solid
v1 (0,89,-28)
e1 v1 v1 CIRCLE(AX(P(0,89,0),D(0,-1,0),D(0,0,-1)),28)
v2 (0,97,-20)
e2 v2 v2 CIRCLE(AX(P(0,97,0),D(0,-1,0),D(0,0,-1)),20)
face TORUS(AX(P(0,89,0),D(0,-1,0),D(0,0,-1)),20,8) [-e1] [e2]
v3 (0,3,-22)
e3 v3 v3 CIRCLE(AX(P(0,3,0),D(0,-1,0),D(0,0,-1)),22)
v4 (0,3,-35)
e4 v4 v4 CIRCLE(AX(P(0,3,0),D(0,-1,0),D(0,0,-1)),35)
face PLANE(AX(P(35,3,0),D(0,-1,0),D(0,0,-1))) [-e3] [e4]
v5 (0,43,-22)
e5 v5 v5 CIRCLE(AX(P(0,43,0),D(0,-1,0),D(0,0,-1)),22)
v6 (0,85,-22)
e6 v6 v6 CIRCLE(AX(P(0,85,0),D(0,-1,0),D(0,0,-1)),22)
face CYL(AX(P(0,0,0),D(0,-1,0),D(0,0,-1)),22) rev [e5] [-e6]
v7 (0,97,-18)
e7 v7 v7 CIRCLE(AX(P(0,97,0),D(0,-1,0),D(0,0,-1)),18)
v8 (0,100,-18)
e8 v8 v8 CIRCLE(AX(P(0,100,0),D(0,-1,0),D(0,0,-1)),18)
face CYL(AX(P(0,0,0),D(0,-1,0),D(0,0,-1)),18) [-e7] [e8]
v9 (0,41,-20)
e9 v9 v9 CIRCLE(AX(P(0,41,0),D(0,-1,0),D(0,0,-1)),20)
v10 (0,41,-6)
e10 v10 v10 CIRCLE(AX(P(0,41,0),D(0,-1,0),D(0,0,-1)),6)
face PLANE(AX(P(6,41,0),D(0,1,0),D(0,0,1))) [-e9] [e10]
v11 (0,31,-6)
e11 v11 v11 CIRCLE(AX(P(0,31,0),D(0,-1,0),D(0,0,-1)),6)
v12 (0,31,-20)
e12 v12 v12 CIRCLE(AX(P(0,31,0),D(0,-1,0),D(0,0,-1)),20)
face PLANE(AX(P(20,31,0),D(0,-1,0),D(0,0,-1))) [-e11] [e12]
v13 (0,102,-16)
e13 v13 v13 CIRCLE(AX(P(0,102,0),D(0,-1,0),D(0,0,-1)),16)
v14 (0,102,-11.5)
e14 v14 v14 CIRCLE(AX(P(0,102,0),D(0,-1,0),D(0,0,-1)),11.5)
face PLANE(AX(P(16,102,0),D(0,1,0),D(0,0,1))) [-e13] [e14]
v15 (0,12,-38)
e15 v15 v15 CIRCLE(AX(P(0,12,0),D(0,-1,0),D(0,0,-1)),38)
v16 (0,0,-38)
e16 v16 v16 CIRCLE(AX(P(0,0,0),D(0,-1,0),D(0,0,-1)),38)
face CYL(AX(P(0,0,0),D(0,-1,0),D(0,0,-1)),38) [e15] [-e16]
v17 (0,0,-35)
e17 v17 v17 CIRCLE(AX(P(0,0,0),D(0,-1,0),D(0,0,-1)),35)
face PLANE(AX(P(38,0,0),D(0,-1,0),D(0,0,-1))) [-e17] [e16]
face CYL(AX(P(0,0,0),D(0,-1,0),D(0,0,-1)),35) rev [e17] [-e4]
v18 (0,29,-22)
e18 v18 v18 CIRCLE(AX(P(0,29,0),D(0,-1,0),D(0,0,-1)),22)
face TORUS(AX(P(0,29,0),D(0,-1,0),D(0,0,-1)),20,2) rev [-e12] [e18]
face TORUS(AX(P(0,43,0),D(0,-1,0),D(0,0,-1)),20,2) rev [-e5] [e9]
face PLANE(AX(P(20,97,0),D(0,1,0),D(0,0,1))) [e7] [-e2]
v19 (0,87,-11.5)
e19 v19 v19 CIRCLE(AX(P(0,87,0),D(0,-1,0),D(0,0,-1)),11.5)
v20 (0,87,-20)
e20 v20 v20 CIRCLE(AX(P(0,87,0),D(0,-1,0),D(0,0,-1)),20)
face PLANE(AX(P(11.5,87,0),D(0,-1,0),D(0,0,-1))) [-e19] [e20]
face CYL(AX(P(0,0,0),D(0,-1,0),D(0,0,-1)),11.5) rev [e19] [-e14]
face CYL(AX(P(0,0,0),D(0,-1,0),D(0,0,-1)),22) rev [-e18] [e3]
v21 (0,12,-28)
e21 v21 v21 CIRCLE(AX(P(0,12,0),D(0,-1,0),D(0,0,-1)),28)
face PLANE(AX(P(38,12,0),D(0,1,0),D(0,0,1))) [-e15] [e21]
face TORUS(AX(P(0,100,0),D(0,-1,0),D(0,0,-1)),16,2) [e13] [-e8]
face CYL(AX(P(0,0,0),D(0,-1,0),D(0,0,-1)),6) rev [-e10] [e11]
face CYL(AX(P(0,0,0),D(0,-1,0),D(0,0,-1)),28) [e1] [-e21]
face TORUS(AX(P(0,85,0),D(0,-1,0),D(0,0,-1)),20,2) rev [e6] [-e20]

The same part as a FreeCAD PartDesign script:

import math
import FreeCAD as App
import Part
import Sketcher

V = App.Vector
Q = App.Units.Quantity

doc = App.newDocument("Part")
body = doc.addObject("PartDesign::Body", "Body")

sketch1 = body.newObject("Sketcher::SketchObject", "Sketch")
sketch1.AttachmentSupport = (doc.getObject("XY_Plane"), [""])
sketch1.MapMode = "FlatFace"
sketch1.addGeometry(Part.LineSegment(V(38, 0, 0), V(38, 12, 0)), False)
sketch1.addGeometry(Part.LineSegment(V(38, 12, 0), V(28, 12, 0)), False)
sketch1.addGeometry(Part.LineSegment(V(28, 12, 0), V(28, 89, 0)), False)
sketch1.addGeometry(Part.ArcOfCircle(Part.Circle(V(20, 89, 0), V(0, 0, 1), 8), math.radians(0), math.radians(90)), False)
sketch1.addGeometry(Part.LineSegment(V(20, 97, 0), V(18, 97, 0)), False)
sketch1.addGeometry(Part.LineSegment(V(18, 97, 0), V(18, 100, 0)), False)
sketch1.addGeometry(Part.ArcOfCircle(Part.Circle(V(16, 100, 0), V(0, 0, 1), 2), math.radians(0), math.radians(90)), False)
sketch1.addGeometry(Part.LineSegment(V(16, 102, 0), V(11.5, 102, 0)), False)
sketch1.addGeometry(Part.LineSegment(V(11.5, 102, 0), V(11.5, 87, 0)), False)
sketch1.addGeometry(Part.LineSegment(V(11.5, 87, 0), V(20, 87, 0)), False)
sketch1.addGeometry(Part.ArcOfCircle(Part.Circle(V(20, 85, 0), V(0, 0, 1), 2), math.radians(0), math.radians(90)), False)
sketch1.addGeometry(Part.LineSegment(V(22, 85, 0), V(22, 43, 0)), False)
sketch1.addGeometry(Part.ArcOfCircle(Part.Circle(V(20, 43, 0), V(0, 0, 1), 2), math.radians(-90), math.radians(0)), False)
sketch1.addGeometry(Part.LineSegment(V(20, 41, 0), V(6, 41, 0)), False)
sketch1.addGeometry(Part.LineSegment(V(6, 41, 0), V(6, 31, 0)), False)
sketch1.addGeometry(Part.LineSegment(V(6, 31, 0), V(20, 31, 0)), False)
sketch1.addGeometry(Part.ArcOfCircle(Part.Circle(V(20, 29, 0), V(0, 0, 1), 2), math.radians(0), math.radians(90)), False)
sketch1.addGeometry(Part.LineSegment(V(22, 29, 0), V(22, 3, 0)), False)
sketch1.addGeometry(Part.LineSegment(V(22, 3, 0), V(35, 3, 0)), False)
sketch1.addGeometry(Part.LineSegment(V(35, 3, 0), V(35, 0, 0)), False)
sketch1.addGeometry(Part.LineSegment(V(35, 0, 0), V(38, 0, 0)), False)
sketch1.addConstraint(Sketcher.Constraint("Coincident", 0, 2, 1, 1))
sketch1.addConstraint(Sketcher.Constraint("Coincident", 1, 2, 2, 1))
sketch1.addConstraint(Sketcher.Constraint("Tangent", 2, 2, 3, 1))
sketch1.addConstraint(Sketcher.Constraint("Tangent", 3, 2, 4, 1))
sketch1.addConstraint(Sketcher.Constraint("Coincident", 4, 2, 5, 1))
sketch1.addConstraint(Sketcher.Constraint("Tangent", 5, 2, 6, 1))
sketch1.addConstraint(Sketcher.Constraint("Tangent", 6, 2, 7, 1))
sketch1.addConstraint(Sketcher.Constraint("Coincident", 7, 2, 8, 1))
sketch1.addConstraint(Sketcher.Constraint("Coincident", 8, 2, 9, 1))
sketch1.addConstraint(Sketcher.Constraint("Tangent", 9, 2, 10, 2))
sketch1.addConstraint(Sketcher.Constraint("Tangent", 10, 1, 11, 1))
sketch1.addConstraint(Sketcher.Constraint("Tangent", 11, 2, 12, 2))
sketch1.addConstraint(Sketcher.Constraint("Tangent", 12, 1, 13, 1))
sketch1.addConstraint(Sketcher.Constraint("Coincident", 13, 2, 14, 1))
sketch1.addConstraint(Sketcher.Constraint("Coincident", 14, 2, 15, 1))
sketch1.addConstraint(Sketcher.Constraint("Tangent", 15, 2, 16, 2))
sketch1.addConstraint(Sketcher.Constraint("Tangent", 16, 1, 17, 1))
sketch1.addConstraint(Sketcher.Constraint("Coincident", 17, 2, 18, 1))
sketch1.addConstraint(Sketcher.Constraint("Coincident", 18, 2, 19, 1))
sketch1.addConstraint(Sketcher.Constraint("Coincident", 19, 2, 20, 1))
sketch1.addConstraint(Sketcher.Constraint("Coincident", 20, 2, 0, 1))
sketch1.addConstraint(Sketcher.Constraint("Vertical", 0))
sketch1.addConstraint(Sketcher.Constraint("Horizontal", 1))
sketch1.addConstraint(Sketcher.Constraint("Vertical", 2))
sketch1.addConstraint(Sketcher.Constraint("Horizontal", 4))
sketch1.addConstraint(Sketcher.Constraint("Vertical", 5))
sketch1.addConstraint(Sketcher.Constraint("Horizontal", 7))
sketch1.addConstraint(Sketcher.Constraint("Vertical", 8))
sketch1.addConstraint(Sketcher.Constraint("Horizontal", 9))
sketch1.addConstraint(Sketcher.Constraint("Vertical", 11))
sketch1.addConstraint(Sketcher.Constraint("Horizontal", 13))
sketch1.addConstraint(Sketcher.Constraint("Vertical", 14))
sketch1.addConstraint(Sketcher.Constraint("Horizontal", 15))
sketch1.addConstraint(Sketcher.Constraint("Vertical", 17))
sketch1.addConstraint(Sketcher.Constraint("Horizontal", 18))
sketch1.addConstraint(Sketcher.Constraint("Vertical", 19))
sketch1.addConstraint(Sketcher.Constraint("Horizontal", 20))
sketch1.addConstraint(Sketcher.Constraint("Equal", 6, 10))
sketch1.addConstraint(Sketcher.Constraint("Equal", 10, 12))
sketch1.addConstraint(Sketcher.Constraint("Equal", 12, 16))
sketch1.addConstraint(Sketcher.Constraint("PointOnObject", 19, 2, -1))
sketch1.addConstraint(Sketcher.Constraint("Vertical", 3, 3, 10, 3))
sketch1.addConstraint(Sketcher.Constraint("Vertical", 12, 3, 16, 3))
sketch1.addConstraint(Sketcher.Constraint("Equal", 20, 5))
sketch1.addConstraint(Sketcher.Constraint("Equal", 1, 14))
sketch1.addConstraint(Sketcher.Constraint("Equal", 5, 19))
sketch1.addConstraint(Sketcher.Constraint("Radius", 3, Q("8 mm")))
sketch1.addConstraint(Sketcher.Constraint("Radius", 6, Q("2 mm")))
sketch1.addConstraint(Sketcher.Constraint("DistanceX", 1, 2, 1, 1, Q("10 mm")))
sketch1.addConstraint(Sketcher.Constraint("DistanceX", 4, 2, 4, 1, Q("2 mm")))
sketch1.addConstraint(Sketcher.Constraint("DistanceX", 13, 2, 13, 1, Q("14 mm")))
sketch1.addConstraint(Sketcher.Constraint("DistanceX", 18, 1, 18, 2, Q("13 mm")))
sketch1.addConstraint(Sketcher.Constraint("DistanceY", 0, 1, 0, 2, Q("12 mm")))
sketch1.addConstraint(Sketcher.Constraint("DistanceY", 2, 1, 2, 2, Q("77 mm")))
sketch1.addConstraint(Sketcher.Constraint("DistanceY", 8, 2, 8, 1, Q("15 mm")))
sketch1.addConstraint(Sketcher.Constraint("DistanceY", 11, 2, 11, 1, Q("42 mm")))
sketch1.addConstraint(Sketcher.Constraint("DistanceX", 7, 2, 7, 1, Q("4.5 mm")))
sketch1.addConstraint(Sketcher.Constraint("DistanceX", -1, 1, 3, 3, Q("20 mm")))
revolution = body.newObject("PartDesign::Revolution", "Revolution")
revolution.Profile = sketch1
revolution.ReferenceAxis = (sketch1, ["V_Axis"])
revolution.Angle = 360

doc.recompute()
